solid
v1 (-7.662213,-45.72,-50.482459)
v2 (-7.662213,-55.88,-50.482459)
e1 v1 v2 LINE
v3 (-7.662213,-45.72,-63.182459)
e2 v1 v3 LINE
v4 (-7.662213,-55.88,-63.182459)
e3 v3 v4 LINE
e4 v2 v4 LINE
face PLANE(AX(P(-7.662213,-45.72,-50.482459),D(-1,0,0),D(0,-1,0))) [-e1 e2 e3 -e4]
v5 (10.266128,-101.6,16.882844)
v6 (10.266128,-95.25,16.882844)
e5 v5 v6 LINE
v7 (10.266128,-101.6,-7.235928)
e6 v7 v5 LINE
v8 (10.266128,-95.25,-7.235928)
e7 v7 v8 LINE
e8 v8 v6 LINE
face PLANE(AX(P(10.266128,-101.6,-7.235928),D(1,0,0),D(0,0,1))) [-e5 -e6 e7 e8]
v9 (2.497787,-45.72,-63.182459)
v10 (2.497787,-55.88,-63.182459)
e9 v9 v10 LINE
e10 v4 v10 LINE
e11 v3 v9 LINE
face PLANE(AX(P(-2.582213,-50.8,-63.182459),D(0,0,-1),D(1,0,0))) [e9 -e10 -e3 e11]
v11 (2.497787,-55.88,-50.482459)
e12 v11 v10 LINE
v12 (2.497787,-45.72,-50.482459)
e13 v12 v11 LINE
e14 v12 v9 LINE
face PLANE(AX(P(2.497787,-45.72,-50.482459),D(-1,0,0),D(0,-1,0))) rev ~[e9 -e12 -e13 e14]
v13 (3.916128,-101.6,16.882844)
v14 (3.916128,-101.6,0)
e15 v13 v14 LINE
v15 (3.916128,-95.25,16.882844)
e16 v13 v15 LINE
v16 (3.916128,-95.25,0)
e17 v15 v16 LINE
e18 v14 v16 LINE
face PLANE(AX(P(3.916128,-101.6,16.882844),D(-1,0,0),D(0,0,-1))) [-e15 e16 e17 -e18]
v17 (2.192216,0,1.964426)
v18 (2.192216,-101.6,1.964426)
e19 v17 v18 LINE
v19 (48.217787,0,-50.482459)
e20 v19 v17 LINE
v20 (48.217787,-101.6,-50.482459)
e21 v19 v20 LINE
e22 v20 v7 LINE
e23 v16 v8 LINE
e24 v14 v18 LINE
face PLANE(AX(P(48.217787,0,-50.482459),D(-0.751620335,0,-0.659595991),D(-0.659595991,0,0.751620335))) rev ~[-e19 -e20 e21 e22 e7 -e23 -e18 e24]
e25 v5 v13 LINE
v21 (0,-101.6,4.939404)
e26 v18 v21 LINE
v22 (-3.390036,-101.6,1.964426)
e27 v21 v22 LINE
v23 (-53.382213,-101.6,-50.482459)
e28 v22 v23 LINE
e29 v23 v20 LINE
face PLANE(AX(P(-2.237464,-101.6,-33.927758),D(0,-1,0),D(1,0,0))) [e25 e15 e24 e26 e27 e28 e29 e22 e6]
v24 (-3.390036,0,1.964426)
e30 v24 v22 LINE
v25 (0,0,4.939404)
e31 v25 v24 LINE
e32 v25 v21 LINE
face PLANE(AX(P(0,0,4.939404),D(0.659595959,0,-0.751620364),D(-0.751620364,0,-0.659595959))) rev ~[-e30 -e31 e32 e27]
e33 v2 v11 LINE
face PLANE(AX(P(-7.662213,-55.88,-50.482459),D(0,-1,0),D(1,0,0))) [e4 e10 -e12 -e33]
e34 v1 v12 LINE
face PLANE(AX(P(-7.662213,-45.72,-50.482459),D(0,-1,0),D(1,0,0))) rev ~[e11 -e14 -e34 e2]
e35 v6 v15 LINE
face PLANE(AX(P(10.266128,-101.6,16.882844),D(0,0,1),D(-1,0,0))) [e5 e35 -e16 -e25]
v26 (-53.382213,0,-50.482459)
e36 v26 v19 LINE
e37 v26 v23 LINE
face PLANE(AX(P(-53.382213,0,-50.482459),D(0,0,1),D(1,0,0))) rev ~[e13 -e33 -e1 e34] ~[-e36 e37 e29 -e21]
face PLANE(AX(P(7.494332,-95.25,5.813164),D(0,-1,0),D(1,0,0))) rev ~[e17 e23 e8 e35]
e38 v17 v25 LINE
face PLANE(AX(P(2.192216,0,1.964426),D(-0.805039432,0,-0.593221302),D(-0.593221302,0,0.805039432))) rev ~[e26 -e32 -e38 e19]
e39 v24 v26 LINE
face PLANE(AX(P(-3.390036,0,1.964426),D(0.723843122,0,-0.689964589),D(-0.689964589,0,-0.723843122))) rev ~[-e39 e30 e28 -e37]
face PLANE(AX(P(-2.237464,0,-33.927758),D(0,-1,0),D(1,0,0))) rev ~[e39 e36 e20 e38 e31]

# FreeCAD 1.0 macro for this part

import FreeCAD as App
import Part
import Sketcher
Q = App.Units.Quantity

doc = App.newDocument("Part")
body = doc.addObject("PartDesign::Body", "Body")

sketch1 = body.newObject("Sketcher::SketchObject", "Sketch")
sketch1.AttachmentSupport = (doc.getObject("XZ_Plane"), [""])
sketch1.MapMode = "FlatFace"
sketch1.addGeometry(Part.LineSegment(App.Vector(-3.390036, 1.964426, 0), App.Vector(-53.382213, -50.482459, 0)), False)
sketch1.addGeometry(Part.LineSegment(App.Vector(-53.382213, -50.482459, 0), App.Vector(48.217787, -50.482459, 0)), False)
sketch1.addGeometry(Part.LineSegment(App.Vector(48.217787, -50.482459, 0), App.Vector(2.192216, 1.964426, 0)), False)
sketch1.addGeometry(Part.LineSegment(App.Vector(2.192216, 1.964426, 0), App.Vector(0, 4.939404, 0)), False)
sketch1.addGeometry(Part.LineSegment(App.Vector(0, 4.939404, 0), App.Vector(-3.390036, 1.964426, 0)), False)
sketch1.addConstraint(Sketcher.Constraint("Coincident", 0, 2, 1, 1))
sketch1.addConstraint(Sketcher.Constraint("Coincident", 1, 2, 2, 1))
sketch1.addConstraint(Sketcher.Constraint("Coincident", 2, 2, 3, 1))
sketch1.addConstraint(Sketcher.Constraint("Coincident", 3, 2, 4, 1))
sketch1.addConstraint(Sketcher.Constraint("Coincident", 4, 2, 0, 1))
sketch1.addConstraint(Sketcher.Constraint("Horizontal", 1))
sketch1.addConstraint(Sketcher.Constraint("PointOnObject", 3, 2, -2))
sketch1.addConstraint(Sketcher.Constraint("Perpendicular", 2, 4))
sketch1.addConstraint(Sketcher.Constraint("Horizontal", 2, 2, 4, 2))
sketch1.addConstraint(Sketcher.Constraint("DistanceX", 1, 1, 1, 2, Q("4 in")))
sketch1.addConstraint(Sketcher.Constraint("Distance", 0, Q("72.456149 mm")))
sketch1.addConstraint(Sketcher.Constraint("DistanceY", 0, 2, -1, 1, Q("50.482459 mm")))
sketch1.addConstraint(Sketcher.Constraint("DistanceX", 2, 2, 1, 2, Q("46.025571 mm")))
sketch1.addConstraint(Sketcher.Constraint("Distance", 2, Q("69.778427 mm")))
sketch1.addConstraint(Sketcher.Constraint("Distance", 3, Q("3.695444 mm")))
pad1 = body.newObject("PartDesign::Pad", "Pad")
pad1.Profile = sketch1
pad1.Length = Q("4 in")

sketch2 = body.newObject("Sketcher::SketchObject", "Sketch001")
sketch2.AttachmentSupport = (doc.getObject("XZ_Plane"), [""])
sketch2.MapMode = "FlatFace"
sketch2.AttachmentOffset = App.Placement(App.Vector(0, 0, 4 * 25.4), App.Rotation())
sketch2.addGeometry(Part.LineSegment(App.Vector(3.916128, 16.882844, 0), App.Vector(3.916128, 0, 0)), False)
sketch2.addGeometry(Part.LineSegment(App.Vector(3.916128, 0, 0), App.Vector(10.266128, -7.235928, 0)), False)
sketch2.addGeometry(Part.LineSegment(App.Vector(10.266128, -7.235928, 0), App.Vector(10.266128, 16.882844, 0)), False)
sketch2.addGeometry(Part.LineSegment(App.Vector(10.266128, 16.882844, 0), App.Vector(3.916128, 16.882844, 0)), False)
sketch2.addConstraint(Sketcher.Constraint("Coincident", 0, 2, 1, 1))
sketch2.addConstraint(Sketcher.Constraint("Coincident", 1, 2, 2, 1))
sketch2.addConstraint(Sketcher.Constraint("Coincident", 2, 2, 3, 1))
sketch2.addConstraint(Sketcher.Constraint("Coincident", 3, 2, 0, 1))
sketch2.addConstraint(Sketcher.Constraint("Vertical", 0))
sketch2.addConstraint(Sketcher.Constraint("Vertical", 2))
sketch2.addConstraint(Sketcher.Constraint("Horizontal", 3))
sketch2.addConstraint(Sketcher.Constraint("PointOnObject", 0, 2, -1))
sketch2.addConstraint(Sketcher.Constraint("DistanceX", 3, 2, 3, 1, Q("0.25 in")))
sketch2.addConstraint(Sketcher.Constraint("DistanceY", 2, 1, 2, 2, Q("24.118772 mm")))
sketch2.addConstraint(Sketcher.Constraint("DistanceY", 0, 2, 0, 1, Q("16.882844 mm")))
sketch2.addConstraint(Sketcher.Constraint("DistanceX", -1, 1, 0, 2, Q("3.916128 mm")))
pad2 = body.newObject("PartDesign::Pad", "Pad001")
pad2.Profile = sketch2
pad2.Length = Q("0.25 in")
pad2.Reversed = True

sketch3 = body.newObject("Sketcher::SketchObject", "Sketch002")
sketch3.AttachmentSupport = (doc.getObject("XY_Plane"), [""])
sketch3.MapMode = "FlatFace"
sketch3.AttachmentOffset = App.Placement(App.Vector(0, 0, -50.482459), App.Rotation())
sketch3.addGeometry(Part.LineSegment(App.Vector(-7.662213, -55.88, 0), App.Vector(-7.662213, -45.72, 0)), False)
sketch3.addGeometry(Part.LineSegment(App.Vector(-7.662213, -45.72, 0), App.Vector(2.497787, -45.72, 0)), False)
sketch3.addGeometry(Part.LineSegment(App.Vector(2.497787, -45.72, 0), App.Vector(2.497787, -55.88, 0)), False)
sketch3.addGeometry(Part.LineSegment(App.Vector(2.497787, -55.88, 0), App.Vector(-7.662213, -55.88, 0)), False)
sketch3.addConstraint(Sketcher.Constraint("Coincident", 0, 2, 1, 1))
sketch3.addConstraint(Sketcher.Constraint("Coincident", 1, 2, 2, 1))
sketch3.addConstraint(Sketcher.Constraint("Coincident", 2, 2, 3, 1))
sketch3.addConstraint(Sketcher.Constraint("Coincident", 3, 2, 0, 1))
sketch3.addConstraint(Sketcher.Constraint("Vertical", 0))
sketch3.addConstraint(Sketcher.Constraint("Horizontal", 1))
sketch3.addConstraint(Sketcher.Constraint("Vertical", 2))
sketch3.addConstraint(Sketcher.Constraint("Horizontal", 3))
sketch3.addConstraint(Sketcher.Constraint("Equal", 3, 0))
sketch3.addConstraint(Sketcher.Constraint("DistanceX", 1, 1, 1, 2, Q("0.4 in")))
sketch3.addConstraint(Sketcher.Constraint("DistanceY", 0, 2, -1, 1, Q("1.8 in")))
sketch3.addConstraint(Sketcher.Constraint("DistanceX", 0, 2, -1, 1, Q("7.662213 mm")))
pad3 = body.newObject("PartDesign::Pad", "Pad002")
pad3.Profile = sketch3
pad3.Length = Q("0.5 in")

sketch4 = body.newObject("Sketcher::SketchObject", "Sketch003")
sketch4.AttachmentSupport = (doc.getObject("XY_Plane"), [""])
sketch4.MapMode = "FlatFace"
sketch4.AttachmentOffset = App.Placement(App.Vector(0, 0, -50.482459), App.Rotation())
sketch4.addGeometry(Part.LineSegment(App.Vector(-7.662213, -55.88, 0), App.Vector(-7.662213, -45.72, 0)), False)
sketch4.addGeometry(Part.LineSegment(App.Vector(-7.662213, -45.72, 0), App.Vector(2.497787, -45.72, 0)), False)
sketch4.addGeometry(Part.LineSegment(App.Vector(2.497787, -45.72, 0), App.Vector(2.497787, -55.88, 0)), False)
sketch4.addGeometry(Part.LineSegment(App.Vector(2.497787, -55.88, 0), App.Vector(-7.662213, -55.88, 0)), False)
sketch4.addConstraint(Sketcher.Constraint("Coincident", 0, 2, 1, 1))
sketch4.addConstraint(Sketcher.Constraint("Coincident", 1, 2, 2, 1))
sketch4.addConstraint(Sketcher.Constraint("Coincident", 2, 2, 3, 1))
sketch4.addConstraint(Sketcher.Constraint("Coincident", 3, 2, 0, 1))
sketch4.addConstraint(Sketcher.Constraint("Vertical", 0))
sketch4.addConstraint(Sketcher.Constraint("Horizontal", 1))
sketch4.addConstraint(Sketcher.Constraint("Vertical", 2))
sketch4.addConstraint(Sketcher.Constraint("Horizontal", 3))
sketch4.addConstraint(Sketcher.Constraint("Equal", 3, 0))
sketch4.addConstraint(Sketcher.Constraint("DistanceX", 1, 1, 1, 2, Q("0.4 in")))
sketch4.addConstraint(Sketcher.Constraint("DistanceY", 0, 2, -1, 1, Q("1.8 in")))
sketch4.addConstraint(Sketcher.Constraint("DistanceX", 0, 2, -1, 1, Q("7.662213 mm")))
pad4 = body.newObject("PartDesign::Pad", "Pad003")
pad4.Profile = sketch4
pad4.Length = Q("0.5 in")
pad4.Reversed = True

doc.recompute()
